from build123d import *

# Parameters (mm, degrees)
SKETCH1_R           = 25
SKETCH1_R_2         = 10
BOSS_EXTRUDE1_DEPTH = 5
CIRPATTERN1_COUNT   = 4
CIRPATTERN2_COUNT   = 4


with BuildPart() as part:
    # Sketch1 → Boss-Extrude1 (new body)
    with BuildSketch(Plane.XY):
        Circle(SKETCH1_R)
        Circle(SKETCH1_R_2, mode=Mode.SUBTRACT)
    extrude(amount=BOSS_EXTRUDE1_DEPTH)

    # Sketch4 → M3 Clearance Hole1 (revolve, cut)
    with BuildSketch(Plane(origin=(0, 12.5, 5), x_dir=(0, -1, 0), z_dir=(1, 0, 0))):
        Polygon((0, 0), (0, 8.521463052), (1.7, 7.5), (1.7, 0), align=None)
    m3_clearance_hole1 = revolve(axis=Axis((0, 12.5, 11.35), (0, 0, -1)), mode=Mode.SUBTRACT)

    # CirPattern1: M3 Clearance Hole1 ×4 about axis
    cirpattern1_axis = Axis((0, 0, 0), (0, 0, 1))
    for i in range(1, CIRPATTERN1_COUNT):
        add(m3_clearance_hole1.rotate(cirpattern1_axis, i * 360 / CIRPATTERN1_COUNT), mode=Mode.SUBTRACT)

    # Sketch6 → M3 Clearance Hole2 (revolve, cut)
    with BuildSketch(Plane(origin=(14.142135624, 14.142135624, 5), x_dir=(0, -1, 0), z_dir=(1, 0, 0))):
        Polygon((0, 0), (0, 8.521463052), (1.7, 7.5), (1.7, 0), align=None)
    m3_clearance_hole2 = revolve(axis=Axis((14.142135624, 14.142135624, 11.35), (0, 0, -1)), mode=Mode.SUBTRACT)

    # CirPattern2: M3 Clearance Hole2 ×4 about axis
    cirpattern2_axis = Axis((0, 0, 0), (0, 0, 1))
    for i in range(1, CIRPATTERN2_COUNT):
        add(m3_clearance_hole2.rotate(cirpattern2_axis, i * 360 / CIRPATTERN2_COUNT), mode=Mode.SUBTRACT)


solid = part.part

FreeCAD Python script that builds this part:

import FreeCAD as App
import Part
import Sketcher
Q = App.Units.Quantity

doc = App.newDocument("Part")
params = doc.addObject("Spreadsheet::Sheet", "Params")
for row, (alias, value) in enumerate([
    ("sketch1_diameter", "50 mm"),
    ("sketch1_diameter2", "20 mm"),
    ("pad1_length", "5 mm"),
    ("sketch2_width", "1.7 mm"),
    ("sketch2_height", "7.5 mm"),
    ("groove_angle", "360 deg"),
    ("sketch3_width", "1.7 mm"),
    ("sketch3_height", "7.5 mm"),
    ("groove2_angle", "360 deg"),
], start=1):
    params.set(f"A{row}", alias)
    params.set(f"B{row}", "=" + value)
    params.setAlias(f"B{row}", alias)

body = doc.addObject("PartDesign::Body", "Body")

# Sketch on XY plane
sketch1 = body.newObject("Sketcher::SketchObject", "Sketch")
sketch1.AttachmentSupport = (doc.getObject("XY_Plane"), [""])
sketch1.MapMode = "FlatFace"
sketch1.addGeometry(Part.Circle(App.Vector(0, 0, 0), App.Vector(0, 0, 1), 25), False)
sketch1.addGeometry(Part.Circle(App.Vector(0, 0, 0), App.Vector(0, 0, 1), 10), False)
sketch1.addConstraint(Sketcher.Constraint("Coincident", 0, 3, -1, 1))
sketch1.addConstraint(Sketcher.Constraint("Coincident", 1, 3, -1, 1))
sketch1.addConstraint(Sketcher.Constraint("Diameter", 0, 50.0))
sketch1.addConstraint(Sketcher.Constraint("Diameter", 1, 20.0))
sketch1.setExpression("Constraints[2]", "Params.sketch1_diameter")
sketch1.setExpression("Constraints[3]", "Params.sketch1_diameter2")
pad1 = body.newObject("PartDesign::Pad", "Pad")
pad1.Profile = sketch1
pad1.setExpression("Length", "Params.pad1_length")

# Sketch on YZ plane
sketch2 = body.newObject("Sketcher::SketchObject", "Sketch001")
sketch2.AttachmentSupport = (doc.getObject("YZ_Plane"), [""])
sketch2.MapMode = "FlatFace"
sketch2.addGeometry(Part.LineSegment(App.Vector(12.5, -3.521463, 0), App.Vector(12.5, 5, 0)), False)
sketch2.addGeometry(Part.LineSegment(App.Vector(12.5, 5, 0), App.Vector(10.8, 5, 0)), False)
sketch2.addGeometry(Part.LineSegment(App.Vector(10.8, 5, 0), App.Vector(10.8, -2.5, 0)), False)
sketch2.addGeometry(Part.LineSegment(App.Vector(10.8, -2.5, 0), App.Vector(12.5, -3.521463, 0)), False)
sketch2.addGeometry(Part.LineSegment(App.Vector(12.5, 5, 0), App.Vector(12.5, -3.521463, 0)), True)  # axis
sketch2.addConstraint(Sketcher.Constraint("Coincident", 0, 2, 1, 1))
sketch2.addConstraint(Sketcher.Constraint("Coincident", 1, 2, 2, 1))
sketch2.addConstraint(Sketcher.Constraint("Coincident", 2, 2, 3, 1))
sketch2.addConstraint(Sketcher.Constraint("Coincident", 3, 2, 0, 1))
sketch2.addConstraint(Sketcher.Constraint("Vertical", 0))
sketch2.addConstraint(Sketcher.Constraint("Horizontal", 1))
sketch2.addConstraint(Sketcher.Constraint("Vertical", 2))
sketch2.addConstraint(Sketcher.Constraint("Vertical", 4))
sketch2.addConstraint(Sketcher.Constraint("Coincident", 4, 1, 0, 2))
sketch2.addConstraint(Sketcher.Constraint("Equal", 0, 4))
sketch2.addConstraint(Sketcher.Constraint("Angle", 3, Q("-31 deg")))
sketch2.addConstraint(Sketcher.Constraint("DistanceX", 1, 2, 1, 1, 1.7))
sketch2.addConstraint(Sketcher.Constraint("DistanceY", 2, 2, 2, 1, 7.5))
sketch2.addConstraint(Sketcher.Constraint("DistanceY", -1, 1, 0, 2, 5.0))
sketch2.addConstraint(Sketcher.Constraint("DistanceX", -1, 1, 0, 2, 12.5))
sketch2.setExpression("Constraints[11]", "Params.sketch2_width")
sketch2.setExpression("Constraints[12]", "Params.sketch2_height")
groove = body.newObject("PartDesign::Groove", "Groove")
groove.Profile = sketch2
groove.ReferenceAxis = (sketch2, ["Axis0"])
groove.setExpression("Angle", "Params.groove_angle")
doc.recompute()

polarpattern = body.newObject("PartDesign::PolarPattern", "PolarPattern")
polarpattern.Originals = [groove]
polarpattern.Axis = (doc.getObject("Z_Axis"), [""])
polarpattern.Angle = 360
polarpattern.Occurrences = 4
body.Tip = polarpattern

# Sketch on YZ plane
sketch3 = body.newObject("Sketcher::SketchObject", "Sketch002")
sketch3.AttachmentSupport = (doc.getObject("YZ_Plane"), [""])
sketch3.MapMode = "FlatFace"
sketch3.AttachmentOffset = App.Placement(App.Vector(0, 0, 14.142136), App.Rotation())
sketch3.addGeometry(Part.LineSegment(App.Vector(14.142136, -3.521463, 0), App.Vector(14.142136, 5, 0)), False)
sketch3.addGeometry(Part.LineSegment(App.Vector(14.142136, 5, 0), App.Vector(12.442136, 5, 0)), False)
sketch3.addGeometry(Part.LineSegment(App.Vector(12.442136, 5, 0), App.Vector(12.442136, -2.5, 0)), False)
sketch3.addGeometry(Part.LineSegment(App.Vector(12.442136, -2.5, 0), App.Vector(14.142136, -3.521463, 0)), False)
sketch3.addGeometry(Part.LineSegment(App.Vector(14.142136, 5, 0), App.Vector(14.142136, -3.521463, 0)), True)  # axis
sketch3.addConstraint(Sketcher.Constraint("Coincident", 0, 2, 1, 1))
sketch3.addConstraint(Sketcher.Constraint("Coincident", 1, 2, 2, 1))
sketch3.addConstraint(Sketcher.Constraint("Coincident", 2, 2, 3, 1))
sketch3.addConstraint(Sketcher.Constraint("Coincident", 3, 2, 0, 1))
sketch3.addConstraint(Sketcher.Constraint("Vertical", 0))
sketch3.addConstraint(Sketcher.Constraint("Horizontal", 1))
sketch3.addConstraint(Sketcher.Constraint("Vertical", 2))
sketch3.addConstraint(Sketcher.Constraint("Vertical", 4))
sketch3.addConstraint(Sketcher.Constraint("Coincident", 4, 1, 0, 2))
sketch3.addConstraint(Sketcher.Constraint("Equal", 0, 4))
sketch3.addConstraint(Sketcher.Constraint("Angle", 3, Q("-31 deg")))
sketch3.addConstraint(Sketcher.Constraint("DistanceX", 1, 2, 1, 1, 1.7))
sketch3.addConstraint(Sketcher.Constraint("DistanceY", 2, 2, 2, 1, 7.5))
sketch3.addConstraint(Sketcher.Constraint("DistanceY", -1, 1, 0, 2, 5.0))
sketch3.addConstraint(Sketcher.Constraint("DistanceX", -1, 1, 0, 2, 14.142136))
sketch3.setExpression("Constraints[11]", "Params.sketch3_width")
sketch3.setExpression("Constraints[12]", "Params.sketch3_height")
groove2 = body.newObject("PartDesign::Groove", "Groove001")
groove2.Profile = sketch3
groove2.ReferenceAxis = (sketch3, ["Axis0"])
groove2.setExpression("Angle", "Params.groove2_angle")
doc.recompute()

polarpattern2 = body.newObject("PartDesign::PolarPattern", "PolarPattern001")
polarpattern2.Originals = [groove2]
polarpattern2.Axis = (doc.getObject("Z_Axis"), [""])
polarpattern2.Angle = 360
polarpattern2.Occurrences = 4
body.Tip = polarpattern2

doc.recompute()
